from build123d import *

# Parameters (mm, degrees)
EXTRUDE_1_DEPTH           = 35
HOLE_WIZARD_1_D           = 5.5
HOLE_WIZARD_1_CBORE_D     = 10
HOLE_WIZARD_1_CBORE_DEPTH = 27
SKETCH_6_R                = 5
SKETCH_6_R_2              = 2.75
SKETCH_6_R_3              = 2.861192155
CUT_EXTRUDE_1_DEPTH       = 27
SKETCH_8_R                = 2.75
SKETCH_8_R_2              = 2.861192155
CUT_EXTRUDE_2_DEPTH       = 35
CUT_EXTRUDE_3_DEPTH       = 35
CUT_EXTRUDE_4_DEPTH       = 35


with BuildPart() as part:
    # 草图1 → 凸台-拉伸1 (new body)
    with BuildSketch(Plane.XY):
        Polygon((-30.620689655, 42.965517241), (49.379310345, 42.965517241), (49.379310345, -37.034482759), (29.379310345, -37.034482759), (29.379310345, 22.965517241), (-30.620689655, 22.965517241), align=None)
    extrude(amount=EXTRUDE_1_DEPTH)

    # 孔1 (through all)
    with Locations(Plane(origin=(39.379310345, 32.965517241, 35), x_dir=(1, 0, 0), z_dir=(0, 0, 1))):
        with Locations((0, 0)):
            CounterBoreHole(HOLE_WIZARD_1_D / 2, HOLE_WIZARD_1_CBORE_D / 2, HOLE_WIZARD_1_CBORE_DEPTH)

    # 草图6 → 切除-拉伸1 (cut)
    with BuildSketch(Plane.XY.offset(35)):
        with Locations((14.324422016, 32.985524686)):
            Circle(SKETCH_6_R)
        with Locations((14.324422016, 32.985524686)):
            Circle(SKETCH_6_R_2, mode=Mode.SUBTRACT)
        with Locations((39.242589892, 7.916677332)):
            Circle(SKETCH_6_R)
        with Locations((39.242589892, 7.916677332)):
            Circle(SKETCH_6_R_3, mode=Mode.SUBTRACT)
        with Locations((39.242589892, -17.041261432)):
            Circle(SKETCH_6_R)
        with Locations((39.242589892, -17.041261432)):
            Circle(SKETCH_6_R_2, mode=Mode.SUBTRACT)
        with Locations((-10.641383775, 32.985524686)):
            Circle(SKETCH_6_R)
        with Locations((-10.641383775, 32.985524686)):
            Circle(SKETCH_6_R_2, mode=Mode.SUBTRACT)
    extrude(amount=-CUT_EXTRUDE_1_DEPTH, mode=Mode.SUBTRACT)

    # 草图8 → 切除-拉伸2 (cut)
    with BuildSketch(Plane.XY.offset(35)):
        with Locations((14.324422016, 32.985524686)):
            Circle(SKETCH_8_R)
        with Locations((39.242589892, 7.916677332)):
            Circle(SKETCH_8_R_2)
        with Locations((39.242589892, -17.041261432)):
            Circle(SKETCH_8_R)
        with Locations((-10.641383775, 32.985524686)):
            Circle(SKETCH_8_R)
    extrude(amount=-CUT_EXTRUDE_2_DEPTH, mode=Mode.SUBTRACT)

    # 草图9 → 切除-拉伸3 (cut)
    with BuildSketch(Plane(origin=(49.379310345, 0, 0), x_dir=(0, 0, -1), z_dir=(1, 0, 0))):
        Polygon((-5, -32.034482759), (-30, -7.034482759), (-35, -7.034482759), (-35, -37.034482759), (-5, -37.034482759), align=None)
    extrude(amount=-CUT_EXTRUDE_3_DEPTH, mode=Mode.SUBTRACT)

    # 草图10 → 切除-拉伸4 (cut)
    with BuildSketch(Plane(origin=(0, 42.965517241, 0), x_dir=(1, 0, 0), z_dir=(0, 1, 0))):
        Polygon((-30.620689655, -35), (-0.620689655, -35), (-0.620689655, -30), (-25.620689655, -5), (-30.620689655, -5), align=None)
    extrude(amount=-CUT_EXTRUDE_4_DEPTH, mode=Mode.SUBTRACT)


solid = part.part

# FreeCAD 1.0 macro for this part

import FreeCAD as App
import Part
import Sketcher
from FreeCAD import Vector
Q = App.Units.Quantity


def add_polygon(sketch, points):
    """Adds a closed chain of lines whose ends are joined by coincident constraints."""
    first, n = sketch.GeometryCount, len(points)
    for a, b in zip(points, points[1:] + points[:1]):
        sketch.addGeometry(Part.LineSegment(App.Vector(*a, 0), App.Vector(*b, 0)), False)
    for i in range(n):
        sketch.addConstraint(Sketcher.Constraint("Coincident", first + i, 2, first + (i + 1) % n, 1))

doc = App.newDocument("Part")
body = doc.addObject("PartDesign::Body", "Body")

# Sketch on XY plane
sketch1 = doc.addObject("Sketcher::SketchObject", "Sketch")
body.addObject(sketch1)
sketch1.AttachmentSupport = (doc.XY_Plane, [""])
sketch1.MapMode = "FlatFace"
add_polygon(sketch1, [(49, 43), (-31, 43), (-31, 23), (29, 23), (29, -37), (49, -37)])  # lines 0-5
sketch1.addConstraint([
    Sketcher.Constraint("Horizontal", 0),
    Sketcher.Constraint("Vertical", 1),
    Sketcher.Constraint("Horizontal", 2),
    Sketcher.Constraint("Vertical", 3),
    Sketcher.Constraint("Horizontal", 4),
    Sketcher.Constraint("Vertical", 5),
    Sketcher.Constraint("Equal", 4, 1),
    Sketcher.Constraint("Equal", 2, 3),
    Sketcher.Constraint("DistanceX", 0, 2, 0, 1, Q("80 mm")),
    Sketcher.Constraint("DistanceX", 2, 1, 2, 2, Q("60 mm")),
    Sketcher.Constraint("DistanceX", 0, 2, -1, 1, Q("30.62069 mm")),
    Sketcher.Constraint("DistanceY", -1, 1, 0, 2, Q("42.965517 mm")),
])
pad1 = doc.addObject("PartDesign::Pad", "Pad")
body.addObject(pad1)
pad1.Profile = sketch1
pad1.Length = 35

# Sketch on XY plane
sketch2 = doc.addObject("Sketcher::SketchObject", "Sketch001")
body.addObject(sketch2)
sketch2.AttachmentSupport = (doc.XY_Plane, [""])
sketch2.MapMode = "FlatFace"
sketch2.AttachmentOffset = App.Placement(Vector(0, 0, 35), App.Rotation())
sketch2.addGeometry(Part.Circle(Vector(39.4, 33, 0), Vector(0, 0, 1), 2.8), False)
sketch2.addConstraint([
    Sketcher.Constraint("Diameter", 0, Q("5.5 mm")),
    Sketcher.Constraint("DistanceX", -1, 1, 0, 3, Q("39.37931 mm")),
    Sketcher.Constraint("DistanceY", -1, 1, 0, 3, Q("32.965517 mm")),
])
doc.recompute()
hole = doc.addObject("PartDesign::Hole", "Hole")
body.addObject(hole)
hole.Profile = sketch2
hole.ThreadType = "None"
hole.Diameter = 5.5
hole.DepthType = "ThroughAll"
hole.HoleCutType = "Counterbore"
hole.HoleCutDiameter = 10
hole.HoleCutDepth = 27

# Sketch on XY plane
sketch3 = doc.addObject("Sketcher::SketchObject", "Sketch002")
body.addObject(sketch3)
sketch3.AttachmentSupport = (doc.XY_Plane, [""])
sketch3.MapMode = "FlatFace"
sketch3.AttachmentOffset = App.Placement(Vector(0, 0, 35), App.Rotation())
sketch3.addGeometry([
    Part.Circle(Vector(14.3, 33, 0), Vector(0, 0, 1), 5),  # 0
    Part.Circle(Vector(14.3, 33, 0), Vector(0, 0, 1), 2.8),  # 1
    Part.Circle(Vector(39.2, 7.9, 0), Vector(0, 0, 1), 5),  # 2
    Part.Circle(Vector(39.2, 7.9, 0), Vector(0, 0, 1), 2.9),  # 3
    Part.Circle(Vector(39.2, -17, 0), Vector(0, 0, 1), 5),  # 4
    Part.Circle(Vector(39.2, -17, 0), Vector(0, 0, 1), 2.8),  # 5
    Part.Circle(Vector(-10.6, 33, 0), Vector(0, 0, 1), 5),  # 6
    Part.Circle(Vector(-10.6, 33, 0), Vector(0, 0, 1), 2.8),  # 7
], False)
sketch3.addConstraint([
    Sketcher.Constraint("Coincident", 1, 3, 0, 3),
    Sketcher.Constraint("Coincident", 3, 3, 2, 3),
    Sketcher.Constraint("Coincident", 5, 3, 4, 3),
    Sketcher.Constraint("Coincident", 7, 3, 6, 3),
    Sketcher.Constraint("Equal", 0, 2),
    Sketcher.Constraint("Equal", 2, 4),
    Sketcher.Constraint("Equal", 1, 5),
    Sketcher.Constraint("Equal", 4, 6),
    Sketcher.Constraint("Equal", 5, 7),
    Sketcher.Constraint("Horizontal", 1, 3, 6, 3),
    Sketcher.Constraint("Vertical", 3, 3, 4, 3),
    Sketcher.Constraint("Diameter", 0, Q("10 mm")),
    Sketcher.Constraint("Diameter", 1, Q("5.5 mm")),
    Sketcher.Constraint("Diameter", 3, Q("5.722384 mm")),
    Sketcher.Constraint("DistanceX", -1, 1, 2, 3, Q("39.24259 mm")),
    Sketcher.Constraint("DistanceY", 4, 3, -1, 1, Q("17.041261 mm")),
    Sketcher.Constraint("DistanceY", 4, 3, 2, 3, Q("24.957939 mm")),
    Sketcher.Constraint("DistanceX", -1, 1, 0, 3, Q("14.324422 mm")),
    Sketcher.Constraint("DistanceY", -1, 1, 0, 3, Q("32.985525 mm")),
    Sketcher.Constraint("DistanceX", 6, 3, -1, 1, Q("10.641384 mm")),
])
pocket1 = doc.addObject("PartDesign::Pocket", "Pocket")
body.addObject(pocket1)
pocket1.Profile = sketch3
pocket1.Length = 27

# Sketch on XY plane
sketch4 = doc.addObject("Sketcher::SketchObject", "Sketch003")
body.addObject(sketch4)
sketch4.AttachmentSupport = (doc.XY_Plane, [""])
sketch4.MapMode = "FlatFace"
sketch4.AttachmentOffset = App.Placement(Vector(0, 0, 35), App.Rotation())
sketch4.addGeometry([
    Part.Circle(Vector(14.3, 33, 0), Vector(0, 0, 1), 2.8),
    Part.Circle(Vector(39.2, 7.9, 0), Vector(0, 0, 1), 2.9),
    Part.Circle(Vector(39.2, -17, 0), Vector(0, 0, 1), 2.8),
    Part.Circle(Vector(-10.6, 33, 0), Vector(0, 0, 1), 2.8),
], False)
sketch4.addConstraint([
    Sketcher.Constraint("Equal", 0, 2),
    Sketcher.Constraint("Equal", 2, 3),
    Sketcher.Constraint("Horizontal", 0, 3, 3, 3),
    Sketcher.Constraint("Vertical", 1, 3, 2, 3),
    Sketcher.Constraint("Diameter", 0, Q("5.5 mm")),
    Sketcher.Constraint("Diameter", 1, Q("5.722384 mm")),
    Sketcher.Constraint("DistanceX", -1, 1, 1, 3, Q("39.24259 mm")),
    Sketcher.Constraint("DistanceY", 2, 3, -1, 1, Q("17.041261 mm")),
    Sketcher.Constraint("DistanceY", 2, 3, 1, 3, Q("24.957939 mm")),
    Sketcher.Constraint("DistanceX", -1, 1, 0, 3, Q("14.324422 mm")),
    Sketcher.Constraint("DistanceY", -1, 1, 0, 3, Q("32.985525 mm")),
    Sketcher.Constraint("DistanceX", 3, 3, -1, 1, Q("10.641384 mm")),
])
pocket2 = doc.addObject("PartDesign::Pocket", "Pocket001")
body.addObject(pocket2)
pocket2.Profile = sketch4
pocket2.Length = 35

# Sketch on YZ plane
sketch5 = doc.addObject("Sketcher::SketchObject", "Sketch004")
body.addObject(sketch5)
sketch5.AttachmentSupport = (doc.YZ_Plane, [""])
sketch5.MapMode = "FlatFace"
sketch5.AttachmentOffset = App.Placement(Vector(0, 0, 49.37931), App.Rotation())
add_polygon(sketch5, [(-32, 5), (-7, 30), (-7, 35), (-37, 35), (-37, 5)])  # lines 0-4
sketch5.addConstraint([
    Sketcher.Constraint("Vertical", 1),
    Sketcher.Constraint("Horizontal", 2),
    Sketcher.Constraint("Vertical", 3),
    Sketcher.Constraint("Horizontal", 4),
    Sketcher.Constraint("Equal", 4, 1),
    Sketcher.Constraint("Equal", 2, 3),
    Sketcher.Constraint("DistanceX", 2, 2, 2, 1, Q("30 mm")),
    Sketcher.Constraint("DistanceX", 4, 1, 4, 2, Q("5 mm")),
    Sketcher.Constraint("DistanceY", -1, 1, 0, 2, Q("30 mm")),
    Sketcher.Constraint("DistanceX", 0, 2, -1, 1, Q("7.034483 mm")),
])
pocket3 = doc.addObject("PartDesign::Pocket", "Pocket002")
body.addObject(pocket3)
pocket3.Profile = sketch5
pocket3.Length = 35

# Sketch on XZ plane
sketch6 = doc.addObject("Sketcher::SketchObject", "Sketch005")
body.addObject(sketch6)
sketch6.AttachmentSupport = (doc.XZ_Plane, [""])
sketch6.MapMode = "FlatFace"
sketch6.AttachmentOffset = App.Placement(Vector(0, 0, -42.965517), App.Rotation())
add_polygon(sketch6, [(-31, 35), (-1, 35), (-1, 30), (-26, 5), (-31, 5)])  # lines 0-4
sketch6.addConstraint([
    Sketcher.Constraint("Horizontal", 0),
    Sketcher.Constraint("Vertical", 1),
    Sketcher.Constraint("Horizontal", 3),
    Sketcher.Constraint("Vertical", 4),
    Sketcher.Constraint("Equal", 3, 1),
    Sketcher.Constraint("Equal", 0, 4),
    Sketcher.Constraint("DistanceX", 0, 1, 0, 2, Q("30 mm")),
    Sketcher.Constraint("DistanceX", 3, 2, 3, 1, Q("5 mm")),
    Sketcher.Constraint("DistanceY", -1, 1, 0, 2, Q("35 mm")),
    Sketcher.Constraint("DistanceX", 0, 2, -1, 1, Q("0.62069 mm")),
])
pocket4 = doc.addObject("PartDesign::Pocket", "Pocket003")
body.addObject(pocket4)
pocket4.Profile = sketch6
pocket4.Length = 35
pocket4.Reversed = True

doc.recompute()
